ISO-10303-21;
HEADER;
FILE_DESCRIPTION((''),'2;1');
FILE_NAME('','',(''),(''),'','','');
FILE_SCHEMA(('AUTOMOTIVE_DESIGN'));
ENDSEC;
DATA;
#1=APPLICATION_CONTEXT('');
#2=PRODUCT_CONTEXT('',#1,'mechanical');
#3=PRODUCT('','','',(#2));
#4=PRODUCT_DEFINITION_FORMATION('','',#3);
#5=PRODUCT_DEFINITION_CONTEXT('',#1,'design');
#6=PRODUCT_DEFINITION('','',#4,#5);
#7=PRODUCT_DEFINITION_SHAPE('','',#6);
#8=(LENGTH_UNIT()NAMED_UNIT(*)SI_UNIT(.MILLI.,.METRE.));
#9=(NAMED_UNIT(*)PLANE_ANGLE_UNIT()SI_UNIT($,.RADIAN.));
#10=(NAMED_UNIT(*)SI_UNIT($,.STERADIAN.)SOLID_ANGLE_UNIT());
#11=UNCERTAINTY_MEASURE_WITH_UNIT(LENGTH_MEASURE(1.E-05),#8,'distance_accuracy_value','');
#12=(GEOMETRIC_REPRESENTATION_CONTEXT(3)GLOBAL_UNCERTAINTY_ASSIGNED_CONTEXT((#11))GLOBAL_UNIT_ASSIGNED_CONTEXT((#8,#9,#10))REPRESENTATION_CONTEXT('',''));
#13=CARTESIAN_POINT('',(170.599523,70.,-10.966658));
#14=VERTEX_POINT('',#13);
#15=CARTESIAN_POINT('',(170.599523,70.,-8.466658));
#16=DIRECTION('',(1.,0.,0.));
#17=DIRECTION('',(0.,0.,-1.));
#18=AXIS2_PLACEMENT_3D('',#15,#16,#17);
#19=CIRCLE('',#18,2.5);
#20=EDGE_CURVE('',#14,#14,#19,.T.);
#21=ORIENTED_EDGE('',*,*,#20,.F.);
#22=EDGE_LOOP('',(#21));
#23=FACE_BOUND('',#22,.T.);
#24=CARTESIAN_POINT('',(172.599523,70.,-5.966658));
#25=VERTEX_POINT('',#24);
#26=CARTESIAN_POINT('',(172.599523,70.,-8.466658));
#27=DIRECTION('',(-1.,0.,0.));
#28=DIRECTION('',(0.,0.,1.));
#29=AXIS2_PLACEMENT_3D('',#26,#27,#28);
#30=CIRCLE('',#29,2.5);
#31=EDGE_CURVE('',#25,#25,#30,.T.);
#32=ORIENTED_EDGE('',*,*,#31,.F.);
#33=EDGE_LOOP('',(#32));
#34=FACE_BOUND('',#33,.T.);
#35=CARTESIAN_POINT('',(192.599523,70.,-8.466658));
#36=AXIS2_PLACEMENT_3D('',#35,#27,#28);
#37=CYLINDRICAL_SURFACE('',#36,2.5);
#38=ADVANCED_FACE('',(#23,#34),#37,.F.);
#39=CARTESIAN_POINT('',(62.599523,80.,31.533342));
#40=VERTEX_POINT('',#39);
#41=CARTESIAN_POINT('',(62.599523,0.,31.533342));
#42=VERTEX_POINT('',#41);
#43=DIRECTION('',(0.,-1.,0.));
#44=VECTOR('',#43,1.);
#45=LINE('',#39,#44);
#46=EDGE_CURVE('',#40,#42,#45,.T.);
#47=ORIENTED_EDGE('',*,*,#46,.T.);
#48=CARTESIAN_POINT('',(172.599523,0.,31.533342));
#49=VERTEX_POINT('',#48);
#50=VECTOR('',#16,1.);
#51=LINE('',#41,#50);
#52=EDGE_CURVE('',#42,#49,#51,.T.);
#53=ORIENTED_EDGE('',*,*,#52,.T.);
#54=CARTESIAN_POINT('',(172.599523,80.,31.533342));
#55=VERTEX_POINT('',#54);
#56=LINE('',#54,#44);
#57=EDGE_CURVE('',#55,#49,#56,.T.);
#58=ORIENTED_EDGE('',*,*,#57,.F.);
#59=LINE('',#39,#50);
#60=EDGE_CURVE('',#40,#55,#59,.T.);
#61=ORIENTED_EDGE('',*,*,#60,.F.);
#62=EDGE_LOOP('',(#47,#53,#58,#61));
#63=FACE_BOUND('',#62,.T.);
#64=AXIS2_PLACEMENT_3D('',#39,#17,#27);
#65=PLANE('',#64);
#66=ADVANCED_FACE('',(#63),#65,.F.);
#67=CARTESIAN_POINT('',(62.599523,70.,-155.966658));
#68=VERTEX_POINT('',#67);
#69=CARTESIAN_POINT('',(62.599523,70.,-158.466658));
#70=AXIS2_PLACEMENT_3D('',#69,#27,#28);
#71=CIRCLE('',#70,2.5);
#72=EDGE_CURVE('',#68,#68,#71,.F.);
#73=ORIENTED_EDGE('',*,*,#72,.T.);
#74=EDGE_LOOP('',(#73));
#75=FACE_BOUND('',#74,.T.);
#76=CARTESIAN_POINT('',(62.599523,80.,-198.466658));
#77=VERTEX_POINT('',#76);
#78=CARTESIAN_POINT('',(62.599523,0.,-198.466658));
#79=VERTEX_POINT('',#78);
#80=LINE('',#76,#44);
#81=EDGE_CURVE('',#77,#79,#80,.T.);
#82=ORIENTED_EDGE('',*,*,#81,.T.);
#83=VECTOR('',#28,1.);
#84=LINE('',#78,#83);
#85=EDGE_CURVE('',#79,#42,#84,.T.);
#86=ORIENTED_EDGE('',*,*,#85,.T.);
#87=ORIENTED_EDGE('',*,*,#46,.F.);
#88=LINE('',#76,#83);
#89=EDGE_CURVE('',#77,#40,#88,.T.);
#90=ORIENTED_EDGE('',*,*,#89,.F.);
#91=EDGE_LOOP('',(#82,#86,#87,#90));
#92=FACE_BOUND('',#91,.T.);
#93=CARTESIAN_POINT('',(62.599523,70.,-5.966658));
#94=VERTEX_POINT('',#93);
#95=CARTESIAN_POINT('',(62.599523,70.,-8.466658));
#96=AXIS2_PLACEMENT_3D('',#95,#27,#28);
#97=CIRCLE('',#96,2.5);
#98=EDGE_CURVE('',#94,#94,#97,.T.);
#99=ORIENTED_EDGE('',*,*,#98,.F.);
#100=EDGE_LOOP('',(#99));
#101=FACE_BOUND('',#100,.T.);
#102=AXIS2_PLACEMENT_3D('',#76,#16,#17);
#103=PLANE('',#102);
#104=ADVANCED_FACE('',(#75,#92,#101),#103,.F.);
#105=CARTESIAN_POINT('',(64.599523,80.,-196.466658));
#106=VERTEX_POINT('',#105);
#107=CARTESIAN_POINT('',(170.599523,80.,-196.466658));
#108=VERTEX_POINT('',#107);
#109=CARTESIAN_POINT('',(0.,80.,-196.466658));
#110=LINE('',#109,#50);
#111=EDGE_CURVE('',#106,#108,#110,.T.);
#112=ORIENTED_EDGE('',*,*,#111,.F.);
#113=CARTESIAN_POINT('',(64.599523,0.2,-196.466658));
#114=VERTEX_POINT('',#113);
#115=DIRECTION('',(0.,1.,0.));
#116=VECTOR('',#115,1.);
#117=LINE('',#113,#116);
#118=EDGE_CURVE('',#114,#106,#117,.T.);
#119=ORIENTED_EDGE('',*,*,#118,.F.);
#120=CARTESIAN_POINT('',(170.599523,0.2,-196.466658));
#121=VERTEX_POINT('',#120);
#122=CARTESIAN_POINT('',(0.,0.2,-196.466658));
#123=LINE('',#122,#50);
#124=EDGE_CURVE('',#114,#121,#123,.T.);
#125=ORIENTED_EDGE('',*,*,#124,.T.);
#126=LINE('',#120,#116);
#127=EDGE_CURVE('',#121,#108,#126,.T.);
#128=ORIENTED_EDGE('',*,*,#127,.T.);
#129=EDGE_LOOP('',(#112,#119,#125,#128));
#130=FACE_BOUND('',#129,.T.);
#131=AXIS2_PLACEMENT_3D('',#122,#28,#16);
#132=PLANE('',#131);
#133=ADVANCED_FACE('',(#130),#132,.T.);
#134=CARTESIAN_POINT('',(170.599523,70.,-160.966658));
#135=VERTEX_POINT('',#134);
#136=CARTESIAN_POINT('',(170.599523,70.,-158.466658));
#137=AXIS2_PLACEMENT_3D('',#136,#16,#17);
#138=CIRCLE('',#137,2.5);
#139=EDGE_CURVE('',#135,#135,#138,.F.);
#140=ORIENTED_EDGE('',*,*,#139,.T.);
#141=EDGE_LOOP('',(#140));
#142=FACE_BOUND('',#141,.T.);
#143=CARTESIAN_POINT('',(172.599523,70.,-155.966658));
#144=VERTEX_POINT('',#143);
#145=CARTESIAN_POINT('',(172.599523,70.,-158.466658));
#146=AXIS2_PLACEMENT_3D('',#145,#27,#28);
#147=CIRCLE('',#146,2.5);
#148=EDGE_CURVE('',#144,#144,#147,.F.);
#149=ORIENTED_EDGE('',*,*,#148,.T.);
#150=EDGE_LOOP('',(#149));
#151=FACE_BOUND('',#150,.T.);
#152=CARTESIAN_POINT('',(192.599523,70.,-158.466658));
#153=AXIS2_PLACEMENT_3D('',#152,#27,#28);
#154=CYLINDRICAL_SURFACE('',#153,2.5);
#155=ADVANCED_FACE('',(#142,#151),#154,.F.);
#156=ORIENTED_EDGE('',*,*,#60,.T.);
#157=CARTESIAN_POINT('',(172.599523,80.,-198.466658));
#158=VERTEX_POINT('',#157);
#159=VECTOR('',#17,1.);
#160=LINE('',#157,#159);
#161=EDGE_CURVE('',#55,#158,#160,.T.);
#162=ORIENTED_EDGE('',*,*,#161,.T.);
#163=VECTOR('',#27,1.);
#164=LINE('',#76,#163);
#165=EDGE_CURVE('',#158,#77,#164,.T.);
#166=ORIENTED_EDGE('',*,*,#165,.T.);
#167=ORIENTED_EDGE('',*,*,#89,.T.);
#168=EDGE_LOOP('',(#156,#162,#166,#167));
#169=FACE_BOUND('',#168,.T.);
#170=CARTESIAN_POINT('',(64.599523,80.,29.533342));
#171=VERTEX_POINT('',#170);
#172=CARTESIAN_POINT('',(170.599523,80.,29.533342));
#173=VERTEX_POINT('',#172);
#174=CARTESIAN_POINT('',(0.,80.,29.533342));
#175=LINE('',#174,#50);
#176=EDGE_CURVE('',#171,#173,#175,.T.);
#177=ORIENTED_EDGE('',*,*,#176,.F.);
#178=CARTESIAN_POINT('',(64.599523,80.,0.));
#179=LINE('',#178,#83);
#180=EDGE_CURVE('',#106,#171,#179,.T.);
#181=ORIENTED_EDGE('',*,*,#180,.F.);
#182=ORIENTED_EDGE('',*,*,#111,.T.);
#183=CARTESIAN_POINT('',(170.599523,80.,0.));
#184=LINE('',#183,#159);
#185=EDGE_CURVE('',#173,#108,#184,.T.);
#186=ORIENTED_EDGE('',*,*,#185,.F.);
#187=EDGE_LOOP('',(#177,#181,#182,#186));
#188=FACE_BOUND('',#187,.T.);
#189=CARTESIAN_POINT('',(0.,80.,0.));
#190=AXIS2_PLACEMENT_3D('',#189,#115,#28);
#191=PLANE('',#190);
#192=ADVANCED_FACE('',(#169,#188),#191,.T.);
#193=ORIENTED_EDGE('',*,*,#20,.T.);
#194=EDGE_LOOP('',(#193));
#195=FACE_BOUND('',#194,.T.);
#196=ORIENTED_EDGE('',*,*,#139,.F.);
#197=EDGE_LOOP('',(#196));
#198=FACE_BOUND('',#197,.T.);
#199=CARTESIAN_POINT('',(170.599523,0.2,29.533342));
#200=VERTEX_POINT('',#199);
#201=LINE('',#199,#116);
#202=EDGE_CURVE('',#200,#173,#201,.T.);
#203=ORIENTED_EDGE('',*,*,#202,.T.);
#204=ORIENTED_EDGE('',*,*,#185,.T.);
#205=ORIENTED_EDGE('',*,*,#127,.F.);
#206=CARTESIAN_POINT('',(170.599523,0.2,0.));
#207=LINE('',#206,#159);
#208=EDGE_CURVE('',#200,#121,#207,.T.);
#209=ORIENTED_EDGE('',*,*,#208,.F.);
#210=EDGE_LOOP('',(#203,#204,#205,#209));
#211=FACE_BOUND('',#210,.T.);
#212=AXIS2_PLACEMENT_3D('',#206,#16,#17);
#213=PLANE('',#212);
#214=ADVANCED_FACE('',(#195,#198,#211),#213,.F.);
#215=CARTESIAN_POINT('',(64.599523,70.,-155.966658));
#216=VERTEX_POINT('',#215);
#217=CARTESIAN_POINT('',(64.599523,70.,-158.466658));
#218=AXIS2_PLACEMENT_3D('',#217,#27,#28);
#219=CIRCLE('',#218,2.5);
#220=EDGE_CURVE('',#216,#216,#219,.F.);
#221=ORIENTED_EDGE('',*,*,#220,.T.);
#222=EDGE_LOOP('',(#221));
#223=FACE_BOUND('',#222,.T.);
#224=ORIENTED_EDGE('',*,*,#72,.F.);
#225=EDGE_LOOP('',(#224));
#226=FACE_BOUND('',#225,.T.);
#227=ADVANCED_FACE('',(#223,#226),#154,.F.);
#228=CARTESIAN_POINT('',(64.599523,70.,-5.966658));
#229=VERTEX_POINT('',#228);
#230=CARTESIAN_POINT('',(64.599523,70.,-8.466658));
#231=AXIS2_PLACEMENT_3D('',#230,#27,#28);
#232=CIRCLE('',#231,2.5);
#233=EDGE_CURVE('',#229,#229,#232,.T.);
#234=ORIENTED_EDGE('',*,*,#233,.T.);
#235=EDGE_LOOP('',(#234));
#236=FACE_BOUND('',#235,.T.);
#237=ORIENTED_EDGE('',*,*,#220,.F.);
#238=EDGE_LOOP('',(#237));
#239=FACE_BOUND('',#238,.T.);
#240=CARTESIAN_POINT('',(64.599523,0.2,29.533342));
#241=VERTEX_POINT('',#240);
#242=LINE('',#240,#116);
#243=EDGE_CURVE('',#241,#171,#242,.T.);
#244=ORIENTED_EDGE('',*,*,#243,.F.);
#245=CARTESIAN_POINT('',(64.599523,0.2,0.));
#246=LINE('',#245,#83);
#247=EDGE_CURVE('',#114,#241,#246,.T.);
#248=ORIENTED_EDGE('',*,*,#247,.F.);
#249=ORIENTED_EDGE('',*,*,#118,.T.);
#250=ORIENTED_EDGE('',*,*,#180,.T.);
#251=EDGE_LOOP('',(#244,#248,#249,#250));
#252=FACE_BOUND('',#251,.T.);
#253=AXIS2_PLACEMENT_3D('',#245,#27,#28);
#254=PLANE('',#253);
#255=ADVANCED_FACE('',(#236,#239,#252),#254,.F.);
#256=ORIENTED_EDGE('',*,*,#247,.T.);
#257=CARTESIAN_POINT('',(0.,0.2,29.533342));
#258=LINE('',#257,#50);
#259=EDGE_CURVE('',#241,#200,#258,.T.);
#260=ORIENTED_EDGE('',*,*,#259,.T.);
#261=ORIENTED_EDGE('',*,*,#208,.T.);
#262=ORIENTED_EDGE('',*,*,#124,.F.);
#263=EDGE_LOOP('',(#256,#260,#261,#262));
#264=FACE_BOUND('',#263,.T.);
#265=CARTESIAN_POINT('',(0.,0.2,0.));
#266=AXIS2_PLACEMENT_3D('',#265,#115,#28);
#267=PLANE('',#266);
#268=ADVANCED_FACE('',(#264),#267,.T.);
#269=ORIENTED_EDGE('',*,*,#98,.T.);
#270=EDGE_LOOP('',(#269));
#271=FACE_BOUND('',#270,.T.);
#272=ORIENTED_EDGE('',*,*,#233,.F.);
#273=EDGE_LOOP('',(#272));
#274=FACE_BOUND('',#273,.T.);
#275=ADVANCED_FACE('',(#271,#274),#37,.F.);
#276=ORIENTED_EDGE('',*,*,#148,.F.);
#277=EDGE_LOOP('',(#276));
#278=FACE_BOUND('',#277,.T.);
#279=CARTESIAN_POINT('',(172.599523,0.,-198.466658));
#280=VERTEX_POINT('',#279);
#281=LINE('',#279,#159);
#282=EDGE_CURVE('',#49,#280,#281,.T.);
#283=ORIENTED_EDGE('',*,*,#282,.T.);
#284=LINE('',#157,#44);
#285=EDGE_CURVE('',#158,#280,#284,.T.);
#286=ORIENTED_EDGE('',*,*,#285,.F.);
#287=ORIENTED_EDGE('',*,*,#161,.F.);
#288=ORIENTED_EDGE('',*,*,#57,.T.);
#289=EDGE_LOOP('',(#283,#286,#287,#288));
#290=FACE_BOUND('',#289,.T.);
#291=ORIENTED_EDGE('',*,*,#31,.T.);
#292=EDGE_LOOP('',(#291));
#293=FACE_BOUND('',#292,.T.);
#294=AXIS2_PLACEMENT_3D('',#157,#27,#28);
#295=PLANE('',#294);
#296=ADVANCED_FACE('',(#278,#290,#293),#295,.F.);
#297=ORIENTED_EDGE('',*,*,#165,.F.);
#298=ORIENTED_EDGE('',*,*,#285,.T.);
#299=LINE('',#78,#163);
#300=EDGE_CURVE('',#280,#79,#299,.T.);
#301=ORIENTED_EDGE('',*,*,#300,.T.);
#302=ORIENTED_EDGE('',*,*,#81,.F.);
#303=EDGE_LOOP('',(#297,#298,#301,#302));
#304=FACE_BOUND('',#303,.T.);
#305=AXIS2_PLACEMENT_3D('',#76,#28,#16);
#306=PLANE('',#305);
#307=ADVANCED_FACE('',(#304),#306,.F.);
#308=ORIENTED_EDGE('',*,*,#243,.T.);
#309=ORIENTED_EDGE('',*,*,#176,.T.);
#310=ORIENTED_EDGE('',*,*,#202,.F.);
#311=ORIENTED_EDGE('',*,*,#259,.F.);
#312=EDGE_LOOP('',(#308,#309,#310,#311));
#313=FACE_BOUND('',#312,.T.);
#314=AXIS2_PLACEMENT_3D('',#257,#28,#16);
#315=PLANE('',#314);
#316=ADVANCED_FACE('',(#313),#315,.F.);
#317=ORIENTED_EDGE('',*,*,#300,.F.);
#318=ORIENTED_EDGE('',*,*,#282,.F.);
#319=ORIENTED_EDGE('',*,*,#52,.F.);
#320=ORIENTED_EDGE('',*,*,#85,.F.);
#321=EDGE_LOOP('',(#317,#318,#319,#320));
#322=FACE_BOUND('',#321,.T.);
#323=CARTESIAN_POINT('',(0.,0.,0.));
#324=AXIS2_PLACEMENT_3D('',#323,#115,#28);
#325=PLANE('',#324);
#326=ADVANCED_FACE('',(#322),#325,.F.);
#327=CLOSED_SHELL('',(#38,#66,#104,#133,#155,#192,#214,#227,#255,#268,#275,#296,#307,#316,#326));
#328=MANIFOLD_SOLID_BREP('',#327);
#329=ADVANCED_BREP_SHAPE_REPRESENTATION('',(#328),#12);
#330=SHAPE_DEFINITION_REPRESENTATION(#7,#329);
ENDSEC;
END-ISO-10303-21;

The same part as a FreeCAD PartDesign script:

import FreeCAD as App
import Part
import Sketcher
from FreeCAD import Vector

doc = App.newDocument("Part")
body = doc.addObject("PartDesign::Body", "Body")

sketch1 = body.newObject("Sketcher::SketchObject", "Sketch")
sketch1.AttachmentSupport = (doc.getObject("XZ_Plane"), [""])
sketch1.MapMode = "FlatFace"
sketch1.addGeometry(Part.LineSegment(Vector(63, -198, 0), Vector(63, 32, 0)), False)
sketch1.addGeometry(Part.LineSegment(Vector(63, 32, 0), Vector(173, 32, 0)), False)
sketch1.addGeometry(Part.LineSegment(Vector(173, 32, 0), Vector(173, -198, 0)), False)
sketch1.addGeometry(Part.LineSegment(Vector(173, -198, 0), Vector(63, -198, 0)), False)
sketch1.addConstraint(Sketcher.Constraint("Coincident", 0, 2, 1, 1))
sketch1.addConstraint(Sketcher.Constraint("Coincident", 1, 2, 2, 1))
sketch1.addConstraint(Sketcher.Constraint("Coincident", 2, 2, 3, 1))
sketch1.addConstraint(Sketcher.Constraint("Coincident", 3, 2, 0, 1))
sketch1.addConstraint(Sketcher.Constraint("Vertical", 0))
sketch1.addConstraint(Sketcher.Constraint("Horizontal", 1))
sketch1.addConstraint(Sketcher.Constraint("Vertical", 2))
sketch1.addConstraint(Sketcher.Constraint("Horizontal", 3))
sketch1.addConstraint(Sketcher.Constraint("DistanceX", 1, 1, 1, 2, 110.0))
sketch1.addConstraint(Sketcher.Constraint("DistanceY", 0, 1, 0, 2, 230.0))
sketch1.addConstraint(Sketcher.Constraint("DistanceY", -1, 1, 0, 2, 31.533342))
sketch1.addConstraint(Sketcher.Constraint("DistanceX", -1, 1, 0, 2, 62.599523))
pad1 = body.newObject("PartDesign::Pad", "Pad")
pad1.Profile = sketch1
pad1.Length = 80
pad1.Reversed = True

sketch2 = body.newObject("Sketcher::SketchObject", "Sketch001")
sketch2.AttachmentSupport = (doc.getObject("XZ_Plane"), [""])
sketch2.MapMode = "FlatFace"
sketch2.AttachmentOffset = App.Placement(Vector(0, 0, -80), App.Rotation())
sketch2.addGeometry(Part.LineSegment(Vector(65, -196, 0), Vector(65, 30, 0)), False)
sketch2.addGeometry(Part.LineSegment(Vector(65, 30, 0), Vector(171, 30, 0)), False)
sketch2.addGeometry(Part.LineSegment(Vector(171, 30, 0), Vector(171, -196, 0)), False)
sketch2.addGeometry(Part.LineSegment(Vector(171, -196, 0), Vector(65, -196, 0)), False)
sketch2.addConstraint(Sketcher.Constraint("Coincident", 0, 2, 1, 1))
sketch2.addConstraint(Sketcher.Constraint("Coincident", 1, 2, 2, 1))
sketch2.addConstraint(Sketcher.Constraint("Coincident", 2, 2, 3, 1))
sketch2.addConstraint(Sketcher.Constraint("Coincident", 3, 2, 0, 1))
sketch2.addConstraint(Sketcher.Constraint("Vertical", 0))
sketch2.addConstraint(Sketcher.Constraint("Horizontal", 1))
sketch2.addConstraint(Sketcher.Constraint("Vertical", 2))
sketch2.addConstraint(Sketcher.Constraint("Horizontal", 3))
sketch2.addConstraint(Sketcher.Constraint("DistanceX", 1, 1, 1, 2, 106.0))
sketch2.addConstraint(Sketcher.Constraint("DistanceY", 0, 1, 0, 2, 226.0))
sketch2.addConstraint(Sketcher.Constraint("DistanceY", -1, 1, 0, 2, 29.533342))
sketch2.addConstraint(Sketcher.Constraint("DistanceX", -1, 1, 0, 2, 64.599523))
pocket1 = body.newObject("PartDesign::Pocket", "Pocket")
pocket1.Profile = sketch2
pocket1.Length = 79.8
pocket1.Reversed = True

sketch3 = body.newObject("Sketcher::SketchObject", "Sketch002")
sketch3.AttachmentSupport = (doc.getObject("YZ_Plane"), [""])
sketch3.MapMode = "FlatFace"
sketch3.AttachmentOffset = App.Placement(Vector(0, 0, 62.599523), App.Rotation())
sketch3.addGeometry(Part.Circle(Vector(70, -158.5, 0), Vector(0, 0, 1), 2.5), False)
sketch3.addGeometry(Part.Circle(Vector(70, -8.5, 0), Vector(0, 0, 1), 2.5), False)
sketch3.addConstraint(Sketcher.Constraint("Equal", 0, 1))
sketch3.addConstraint(Sketcher.Constraint("Vertical", 0, 3, 1, 3))
sketch3.addConstraint(Sketcher.Constraint("Diameter", 0, 5.0))
sketch3.addConstraint(Sketcher.Constraint("DistanceX", -1, 1, 0, 3, 70.0))
sketch3.addConstraint(Sketcher.Constraint("DistanceY", 0, 3, 1, 3, 150.0))
sketch3.addConstraint(Sketcher.Constraint("DistanceY", 0, 3, -1, 1, 158.466658))
pocket2 = body.newObject("PartDesign::Pocket", "Pocket001")
pocket2.Profile = sketch3
pocket2.Length = 130
pocket2.Reversed = True

doc.recompute()
